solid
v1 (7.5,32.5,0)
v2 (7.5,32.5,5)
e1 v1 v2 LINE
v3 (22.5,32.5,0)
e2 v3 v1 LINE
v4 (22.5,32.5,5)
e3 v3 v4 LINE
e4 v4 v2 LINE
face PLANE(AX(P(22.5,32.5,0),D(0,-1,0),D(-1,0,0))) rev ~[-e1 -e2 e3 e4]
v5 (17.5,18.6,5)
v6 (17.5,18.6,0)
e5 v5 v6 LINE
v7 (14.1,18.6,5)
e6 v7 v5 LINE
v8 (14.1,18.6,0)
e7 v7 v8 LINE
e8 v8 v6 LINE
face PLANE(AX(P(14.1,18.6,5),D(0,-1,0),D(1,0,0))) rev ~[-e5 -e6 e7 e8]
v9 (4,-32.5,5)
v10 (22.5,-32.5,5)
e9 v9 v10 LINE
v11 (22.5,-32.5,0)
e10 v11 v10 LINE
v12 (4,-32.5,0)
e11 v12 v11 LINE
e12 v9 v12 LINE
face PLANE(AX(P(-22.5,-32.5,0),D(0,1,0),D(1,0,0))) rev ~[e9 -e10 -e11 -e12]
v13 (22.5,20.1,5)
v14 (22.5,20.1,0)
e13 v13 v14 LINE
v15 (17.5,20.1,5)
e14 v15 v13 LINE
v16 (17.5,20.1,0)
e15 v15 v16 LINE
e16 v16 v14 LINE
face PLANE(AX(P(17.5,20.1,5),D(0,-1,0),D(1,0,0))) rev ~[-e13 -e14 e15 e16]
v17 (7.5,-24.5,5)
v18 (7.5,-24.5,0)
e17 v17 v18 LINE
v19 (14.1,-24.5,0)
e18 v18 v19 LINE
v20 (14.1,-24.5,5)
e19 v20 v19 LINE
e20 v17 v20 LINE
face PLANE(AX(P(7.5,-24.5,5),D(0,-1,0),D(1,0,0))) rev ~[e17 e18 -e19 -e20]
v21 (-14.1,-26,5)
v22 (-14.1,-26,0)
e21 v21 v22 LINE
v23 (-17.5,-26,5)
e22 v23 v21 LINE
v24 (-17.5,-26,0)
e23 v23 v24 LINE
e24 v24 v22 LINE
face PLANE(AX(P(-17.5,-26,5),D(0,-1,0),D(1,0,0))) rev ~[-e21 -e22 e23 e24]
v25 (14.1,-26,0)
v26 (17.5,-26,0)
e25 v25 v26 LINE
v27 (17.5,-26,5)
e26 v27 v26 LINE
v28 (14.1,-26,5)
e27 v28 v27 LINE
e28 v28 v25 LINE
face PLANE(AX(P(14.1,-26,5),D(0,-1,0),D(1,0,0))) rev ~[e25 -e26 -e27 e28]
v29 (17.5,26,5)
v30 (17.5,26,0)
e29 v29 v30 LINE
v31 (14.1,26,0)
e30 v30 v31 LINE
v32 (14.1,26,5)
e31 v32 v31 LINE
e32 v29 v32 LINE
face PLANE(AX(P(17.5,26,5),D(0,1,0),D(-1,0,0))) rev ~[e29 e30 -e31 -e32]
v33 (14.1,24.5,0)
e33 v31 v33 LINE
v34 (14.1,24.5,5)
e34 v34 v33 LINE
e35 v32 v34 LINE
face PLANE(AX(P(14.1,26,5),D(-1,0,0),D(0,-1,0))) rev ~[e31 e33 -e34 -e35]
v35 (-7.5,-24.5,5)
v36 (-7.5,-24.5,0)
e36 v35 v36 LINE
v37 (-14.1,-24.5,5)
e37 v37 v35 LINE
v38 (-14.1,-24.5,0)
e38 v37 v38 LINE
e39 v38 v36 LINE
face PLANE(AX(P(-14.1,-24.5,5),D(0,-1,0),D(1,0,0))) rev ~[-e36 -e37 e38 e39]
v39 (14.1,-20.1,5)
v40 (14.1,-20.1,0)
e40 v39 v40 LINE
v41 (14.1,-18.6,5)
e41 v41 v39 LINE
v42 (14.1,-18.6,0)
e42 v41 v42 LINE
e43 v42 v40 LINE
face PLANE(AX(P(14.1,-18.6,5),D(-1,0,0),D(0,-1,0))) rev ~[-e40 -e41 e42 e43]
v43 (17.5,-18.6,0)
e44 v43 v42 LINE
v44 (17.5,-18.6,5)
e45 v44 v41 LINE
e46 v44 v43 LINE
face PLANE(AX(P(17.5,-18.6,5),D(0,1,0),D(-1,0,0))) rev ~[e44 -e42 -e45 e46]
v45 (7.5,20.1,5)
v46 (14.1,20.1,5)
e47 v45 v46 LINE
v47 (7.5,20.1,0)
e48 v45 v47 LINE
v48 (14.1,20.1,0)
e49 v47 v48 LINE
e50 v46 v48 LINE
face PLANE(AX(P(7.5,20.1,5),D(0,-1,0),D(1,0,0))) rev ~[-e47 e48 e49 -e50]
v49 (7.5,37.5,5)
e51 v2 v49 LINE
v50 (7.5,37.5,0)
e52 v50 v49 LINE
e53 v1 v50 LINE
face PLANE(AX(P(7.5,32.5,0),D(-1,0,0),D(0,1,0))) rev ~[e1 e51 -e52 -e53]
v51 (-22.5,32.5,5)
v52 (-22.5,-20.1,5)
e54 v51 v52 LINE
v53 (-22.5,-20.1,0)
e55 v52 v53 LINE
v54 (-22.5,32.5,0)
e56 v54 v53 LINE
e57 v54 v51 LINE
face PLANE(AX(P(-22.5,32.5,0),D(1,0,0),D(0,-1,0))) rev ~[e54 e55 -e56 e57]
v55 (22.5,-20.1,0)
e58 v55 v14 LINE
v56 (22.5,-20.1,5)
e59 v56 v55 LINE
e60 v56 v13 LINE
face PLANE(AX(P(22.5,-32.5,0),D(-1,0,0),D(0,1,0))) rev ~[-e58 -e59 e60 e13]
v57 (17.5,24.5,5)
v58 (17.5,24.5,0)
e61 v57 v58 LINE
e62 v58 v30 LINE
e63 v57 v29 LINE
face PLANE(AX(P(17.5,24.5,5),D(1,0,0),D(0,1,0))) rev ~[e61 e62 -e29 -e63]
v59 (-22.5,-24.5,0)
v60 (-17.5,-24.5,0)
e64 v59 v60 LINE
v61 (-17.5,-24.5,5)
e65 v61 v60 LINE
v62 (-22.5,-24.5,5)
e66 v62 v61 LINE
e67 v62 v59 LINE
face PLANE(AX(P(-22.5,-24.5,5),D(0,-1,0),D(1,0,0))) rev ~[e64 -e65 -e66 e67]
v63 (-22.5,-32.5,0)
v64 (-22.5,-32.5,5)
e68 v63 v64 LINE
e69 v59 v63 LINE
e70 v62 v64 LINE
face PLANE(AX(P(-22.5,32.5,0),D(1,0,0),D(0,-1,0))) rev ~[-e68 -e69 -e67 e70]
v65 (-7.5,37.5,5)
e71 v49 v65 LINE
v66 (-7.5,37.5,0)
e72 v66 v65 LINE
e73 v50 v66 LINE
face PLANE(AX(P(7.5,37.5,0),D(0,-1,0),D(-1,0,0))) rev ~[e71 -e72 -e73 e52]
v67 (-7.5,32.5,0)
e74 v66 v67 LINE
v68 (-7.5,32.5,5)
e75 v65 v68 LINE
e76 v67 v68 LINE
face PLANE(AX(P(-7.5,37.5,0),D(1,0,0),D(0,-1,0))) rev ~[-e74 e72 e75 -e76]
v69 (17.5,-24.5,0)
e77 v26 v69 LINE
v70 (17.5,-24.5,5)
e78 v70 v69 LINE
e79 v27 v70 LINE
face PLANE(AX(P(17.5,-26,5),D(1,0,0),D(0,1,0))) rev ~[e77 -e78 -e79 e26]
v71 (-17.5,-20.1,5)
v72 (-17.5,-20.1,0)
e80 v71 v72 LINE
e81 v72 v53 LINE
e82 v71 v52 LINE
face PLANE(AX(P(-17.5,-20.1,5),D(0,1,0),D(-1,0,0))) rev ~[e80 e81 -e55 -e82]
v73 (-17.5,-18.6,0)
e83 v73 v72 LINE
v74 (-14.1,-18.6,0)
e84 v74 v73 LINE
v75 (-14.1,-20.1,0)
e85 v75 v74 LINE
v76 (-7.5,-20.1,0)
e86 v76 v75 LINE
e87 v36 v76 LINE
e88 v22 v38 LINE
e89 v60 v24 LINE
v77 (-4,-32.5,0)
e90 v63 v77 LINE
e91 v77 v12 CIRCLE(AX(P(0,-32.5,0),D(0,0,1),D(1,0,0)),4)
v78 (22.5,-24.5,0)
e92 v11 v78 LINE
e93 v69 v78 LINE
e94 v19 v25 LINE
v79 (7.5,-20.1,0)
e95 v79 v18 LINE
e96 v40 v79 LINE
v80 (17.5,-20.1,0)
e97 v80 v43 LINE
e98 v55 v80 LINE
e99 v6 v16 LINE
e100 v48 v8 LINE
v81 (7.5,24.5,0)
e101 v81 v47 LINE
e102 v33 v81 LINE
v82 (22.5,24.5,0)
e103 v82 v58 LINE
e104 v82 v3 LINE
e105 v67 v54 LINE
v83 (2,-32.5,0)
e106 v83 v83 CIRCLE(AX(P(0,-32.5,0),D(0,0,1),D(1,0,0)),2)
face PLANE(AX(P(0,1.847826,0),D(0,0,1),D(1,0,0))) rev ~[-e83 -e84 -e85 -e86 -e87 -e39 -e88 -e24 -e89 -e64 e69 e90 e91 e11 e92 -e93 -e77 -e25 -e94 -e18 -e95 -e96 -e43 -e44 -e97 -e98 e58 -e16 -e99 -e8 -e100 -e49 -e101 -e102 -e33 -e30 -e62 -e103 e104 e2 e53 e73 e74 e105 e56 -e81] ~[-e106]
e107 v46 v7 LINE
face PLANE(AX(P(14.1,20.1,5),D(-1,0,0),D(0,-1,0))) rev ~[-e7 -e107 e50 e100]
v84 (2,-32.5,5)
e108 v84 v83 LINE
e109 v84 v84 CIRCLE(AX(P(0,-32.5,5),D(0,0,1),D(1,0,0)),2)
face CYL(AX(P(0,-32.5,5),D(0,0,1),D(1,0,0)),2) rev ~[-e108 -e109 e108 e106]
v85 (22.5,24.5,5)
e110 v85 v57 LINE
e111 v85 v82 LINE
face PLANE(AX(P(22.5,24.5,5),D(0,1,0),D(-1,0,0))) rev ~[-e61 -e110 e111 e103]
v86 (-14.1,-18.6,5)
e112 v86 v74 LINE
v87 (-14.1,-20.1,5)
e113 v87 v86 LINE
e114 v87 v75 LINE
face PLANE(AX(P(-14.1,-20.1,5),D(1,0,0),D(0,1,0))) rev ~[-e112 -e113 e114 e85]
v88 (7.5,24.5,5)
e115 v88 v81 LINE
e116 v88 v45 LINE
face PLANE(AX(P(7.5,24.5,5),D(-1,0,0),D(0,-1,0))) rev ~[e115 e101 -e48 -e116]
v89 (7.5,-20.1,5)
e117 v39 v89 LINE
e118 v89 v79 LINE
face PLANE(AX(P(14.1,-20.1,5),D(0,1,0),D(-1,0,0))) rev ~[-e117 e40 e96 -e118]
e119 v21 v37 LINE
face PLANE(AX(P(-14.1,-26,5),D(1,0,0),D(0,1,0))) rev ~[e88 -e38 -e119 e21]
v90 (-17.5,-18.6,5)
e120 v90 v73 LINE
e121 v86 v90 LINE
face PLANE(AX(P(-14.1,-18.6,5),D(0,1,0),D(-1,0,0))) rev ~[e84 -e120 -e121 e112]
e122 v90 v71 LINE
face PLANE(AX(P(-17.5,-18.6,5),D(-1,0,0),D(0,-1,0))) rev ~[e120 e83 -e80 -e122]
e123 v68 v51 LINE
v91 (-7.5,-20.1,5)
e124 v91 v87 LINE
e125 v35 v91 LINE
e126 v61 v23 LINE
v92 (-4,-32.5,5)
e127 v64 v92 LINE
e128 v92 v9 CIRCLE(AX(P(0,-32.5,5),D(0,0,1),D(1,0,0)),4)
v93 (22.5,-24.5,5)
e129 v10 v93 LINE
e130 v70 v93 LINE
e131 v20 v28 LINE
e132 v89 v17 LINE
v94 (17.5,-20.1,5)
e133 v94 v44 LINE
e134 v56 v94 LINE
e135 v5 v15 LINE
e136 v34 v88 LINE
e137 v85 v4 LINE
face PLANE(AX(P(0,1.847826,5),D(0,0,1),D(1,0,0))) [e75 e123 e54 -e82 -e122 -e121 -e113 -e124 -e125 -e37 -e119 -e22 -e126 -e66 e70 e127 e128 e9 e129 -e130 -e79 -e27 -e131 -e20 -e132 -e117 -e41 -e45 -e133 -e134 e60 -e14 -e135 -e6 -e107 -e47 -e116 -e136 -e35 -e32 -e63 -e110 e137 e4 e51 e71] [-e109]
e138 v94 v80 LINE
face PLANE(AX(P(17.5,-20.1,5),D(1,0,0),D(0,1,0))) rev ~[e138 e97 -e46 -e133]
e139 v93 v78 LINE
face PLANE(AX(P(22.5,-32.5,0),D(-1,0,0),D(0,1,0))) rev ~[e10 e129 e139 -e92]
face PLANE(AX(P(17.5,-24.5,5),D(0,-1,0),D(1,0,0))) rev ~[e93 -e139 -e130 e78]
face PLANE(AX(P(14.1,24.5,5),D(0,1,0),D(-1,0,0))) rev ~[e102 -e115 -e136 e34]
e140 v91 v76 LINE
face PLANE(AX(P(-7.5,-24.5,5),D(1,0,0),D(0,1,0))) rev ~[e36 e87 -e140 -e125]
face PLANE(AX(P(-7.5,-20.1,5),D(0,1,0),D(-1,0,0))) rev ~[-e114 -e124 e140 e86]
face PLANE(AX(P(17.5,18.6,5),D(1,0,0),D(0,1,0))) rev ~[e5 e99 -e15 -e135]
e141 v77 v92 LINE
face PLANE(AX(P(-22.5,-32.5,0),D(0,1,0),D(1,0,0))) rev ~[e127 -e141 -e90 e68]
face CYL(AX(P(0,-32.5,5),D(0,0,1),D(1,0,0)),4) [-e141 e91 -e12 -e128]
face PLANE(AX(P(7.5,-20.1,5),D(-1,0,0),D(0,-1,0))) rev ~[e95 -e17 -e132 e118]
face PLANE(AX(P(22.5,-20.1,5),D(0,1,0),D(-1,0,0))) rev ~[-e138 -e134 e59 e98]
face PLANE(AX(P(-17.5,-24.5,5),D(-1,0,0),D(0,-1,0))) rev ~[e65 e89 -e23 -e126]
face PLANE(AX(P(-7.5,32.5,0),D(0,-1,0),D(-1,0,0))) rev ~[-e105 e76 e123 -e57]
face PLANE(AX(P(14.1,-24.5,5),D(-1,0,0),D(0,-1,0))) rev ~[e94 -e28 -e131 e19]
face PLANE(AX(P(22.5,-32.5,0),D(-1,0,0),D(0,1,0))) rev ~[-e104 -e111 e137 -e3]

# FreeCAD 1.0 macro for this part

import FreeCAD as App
import Part
import Sketcher


def add_polygon(sketch, points):
    """Adds a closed chain of lines whose ends are joined by coincident constraints."""
    first, n = sketch.GeometryCount, len(points)
    for a, b in zip(points, points[1:] + points[:1]):
        sketch.addGeometry(Part.LineSegment(App.Vector(*a, 0), App.Vector(*b, 0)), False)
    for i in range(n):
        sketch.addConstraint(Sketcher.Constraint("Coincident", first + i, 2, first + (i + 1) % n, 1))

doc = App.newDocument("Part")
body = doc.addObject("PartDesign::Body", "Body")

# Sketch on XY plane
sketch1 = body.newObject("Sketcher::SketchObject", "Sketch")
sketch1.AttachmentSupport = (doc.getObject("XY_Plane"), [""])
sketch1.MapMode = "FlatFace"
add_polygon(sketch1, [(8, 32), (8, 38), (-8, 38), (-8, 32), (-22, 32), (-22, -32), (22, -32), (22, 32)])  # lines 0-7
sketch1.addConstraint(Sketcher.Constraint("Vertical", 0))
sketch1.addConstraint(Sketcher.Constraint("Horizontal", 1))
sketch1.addConstraint(Sketcher.Constraint("Vertical", 2))
sketch1.addConstraint(Sketcher.Constraint("Horizontal", 3))
sketch1.addConstraint(Sketcher.Constraint("Vertical", 4))
sketch1.addConstraint(Sketcher.Constraint("Horizontal", 5))
sketch1.addConstraint(Sketcher.Constraint("Vertical", 6))
sketch1.addConstraint(Sketcher.Constraint("Horizontal", 7))
sketch1.addConstraint(Sketcher.Constraint("Symmetric", 3, 2, 5, 2, -1, 1))
sketch1.addConstraint(Sketcher.Constraint("Symmetric", 2, 2, 7, 2, -2))
sketch1.addConstraint(Sketcher.Constraint("Equal", 1, 3))
sketch1.addConstraint(Sketcher.Constraint("DistanceX", 1, 2, 1, 1, 15.0))
sketch1.addConstraint(Sketcher.Constraint("DistanceY", 0, 1, 0, 2, 5.0))
sketch1.addConstraint(Sketcher.Constraint("DistanceY", 4, 2, 4, 1, 65.0))
pad1 = body.newObject("PartDesign::Pad", "Pad")
pad1.Profile = sketch1
pad1.Length = 5

# Sketch on XY plane
sketch2 = body.newObject("Sketcher::SketchObject", "Sketch001")
sketch2.AttachmentSupport = (doc.getObject("XY_Plane"), [""])
sketch2.MapMode = "FlatFace"
sketch2.AttachmentOffset = App.Placement(App.Vector(0, 0, 5), App.Rotation())
add_polygon(sketch2, [(22.5, 24.5), (17.5, 24.5), (17.5, 26), (14.1, 26), (14.1, 24.5), (7.5, 24.5), (7.5, 20.1), (14.1, 20.1), (14.1, 18.6), (17.5, 18.6), (17.5, 20.1), (22.5, 20.1)])  # lines 0-11
add_polygon(sketch2, [(22.5, -24.5), (22.5, -20.1), (17.5, -20.1), (17.5, -18.6), (14.1, -18.6), (14.1, -20.1), (7.5, -20.1), (7.5, -24.5), (14.1, -24.5), (14.1, -26), (17.5, -26), (17.5, -24.5)])  # lines 12-23
add_polygon(sketch2, [(-22.5, -24.5), (-17.5, -24.5), (-17.5, -26), (-14.1, -26), (-14.1, -24.5), (-7.5, -24.5), (-7.5, -20.1), (-14.1, -20.1), (-14.1, -18.6), (-17.5, -18.6), (-17.5, -20.1), (-22.5, -20.1)])  # lines 24-35
sketch2.addConstraint(Sketcher.Constraint("Horizontal", 0))
sketch2.addConstraint(Sketcher.Constraint("Vertical", 1))
sketch2.addConstraint(Sketcher.Constraint("Horizontal", 2))
sketch2.addConstraint(Sketcher.Constraint("Vertical", 3))
sketch2.addConstraint(Sketcher.Constraint("Horizontal", 4))
sketch2.addConstraint(Sketcher.Constraint("Vertical", 5))
sketch2.addConstraint(Sketcher.Constraint("Horizontal", 6))
sketch2.addConstraint(Sketcher.Constraint("Vertical", 7))
sketch2.addConstraint(Sketcher.Constraint("Horizontal", 8))
sketch2.addConstraint(Sketcher.Constraint("Vertical", 9))
sketch2.addConstraint(Sketcher.Constraint("Horizontal", 10))
sketch2.addConstraint(Sketcher.Constraint("Vertical", 11))
sketch2.addConstraint(Sketcher.Constraint("Vertical", 12))
sketch2.addConstraint(Sketcher.Constraint("Horizontal", 13))
sketch2.addConstraint(Sketcher.Constraint("Vertical", 14))
sketch2.addConstraint(Sketcher.Constraint("Horizontal", 15))
sketch2.addConstraint(Sketcher.Constraint("Vertical", 16))
sketch2.addConstraint(Sketcher.Constraint("Horizontal", 17))
sketch2.addConstraint(Sketcher.Constraint("Vertical", 18))
sketch2.addConstraint(Sketcher.Constraint("Horizontal", 19))
sketch2.addConstraint(Sketcher.Constraint("Vertical", 20))
sketch2.addConstraint(Sketcher.Constraint("Horizontal", 21))
sketch2.addConstraint(Sketcher.Constraint("Vertical", 22))
sketch2.addConstraint(Sketcher.Constraint("Horizontal", 23))
sketch2.addConstraint(Sketcher.Constraint("Horizontal", 24))
sketch2.addConstraint(Sketcher.Constraint("Vertical", 25))
sketch2.addConstraint(Sketcher.Constraint("Horizontal", 26))
sketch2.addConstraint(Sketcher.Constraint("Vertical", 27))
sketch2.addConstraint(Sketcher.Constraint("Horizontal", 28))
sketch2.addConstraint(Sketcher.Constraint("Vertical", 29))
sketch2.addConstraint(Sketcher.Constraint("Horizontal", 30))
sketch2.addConstraint(Sketcher.Constraint("Vertical", 31))
sketch2.addConstraint(Sketcher.Constraint("Horizontal", 32))
sketch2.addConstraint(Sketcher.Constraint("Vertical", 33))
sketch2.addConstraint(Sketcher.Constraint("Horizontal", 34))
sketch2.addConstraint(Sketcher.Constraint("Vertical", 35))
sketch2.addConstraint(Sketcher.Constraint("Symmetric", 0, 2, 24, 2, -1, 1))
sketch2.addConstraint(Sketcher.Constraint("Symmetric", 2, 2, 26, 2, -1, 1))
sketch2.addConstraint(Sketcher.Constraint("Symmetric", 4, 2, 28, 2, -1, 1))
sketch2.addConstraint(Sketcher.Constraint("Symmetric", 6, 2, 30, 2, -1, 1))
sketch2.addConstraint(Sketcher.Constraint("Symmetric", 8, 2, 32, 2, -1, 1))
sketch2.addConstraint(Sketcher.Constraint("Symmetric", 10, 2, 34, 2, -1, 1))
sketch2.addConstraint(Sketcher.Constraint("Symmetric", 22, 2, 24, 2, -2))
sketch2.addConstraint(Sketcher.Constraint("Symmetric", 20, 2, 26, 2, -2))
sketch2.addConstraint(Sketcher.Constraint("Symmetric", 18, 2, 28, 2, -2))
sketch2.addConstraint(Sketcher.Constraint("Symmetric", 16, 2, 30, 2, -2))
sketch2.addConstraint(Sketcher.Constraint("Symmetric", 14, 2, 32, 2, -2))
sketch2.addConstraint(Sketcher.Constraint("Symmetric", 12, 2, 34, 2, -2))
sketch2.addConstraint(Sketcher.Constraint("Horizontal", 0, 2, 3, 2))
sketch2.addConstraint(Sketcher.Constraint("Horizontal", 6, 2, 9, 2))
sketch2.addConstraint(Sketcher.Constraint("Vertical", 3, 2, 6, 2))
sketch2.addConstraint(Sketcher.Constraint("Vertical", 1, 2, 8, 2))
sketch2.addConstraint(Sketcher.Constraint("Equal", 3, 7))
sketch2.addConstraint(Sketcher.Constraint("DistanceX", 0, 2, 0, 1, 5.0))
sketch2.addConstraint(Sketcher.Constraint("DistanceX", 2, 2, 2, 1, 3.4))
sketch2.addConstraint(Sketcher.Constraint("DistanceX", 4, 2, 4, 1, 6.6))
sketch2.addConstraint(Sketcher.Constraint("DistanceY", 1, 1, 1, 2, 1.5))
sketch2.addConstraint(Sketcher.Constraint("DistanceY", 5, 2, 5, 1, 4.4))
sketch2.addConstraint(Sketcher.Constraint("DistanceY", -1, 1, 1, 2, 26.0))
sketch2.addConstraint(Sketcher.Constraint("DistanceX", 24, 2, 18, 2, 25.0))
pocket1 = body.newObject("PartDesign::Pocket", "Pocket")
pocket1.Profile = sketch2
pocket1.Length = 5

# Sketch on XY plane
sketch3 = body.newObject("Sketcher::SketchObject", "Sketch002")
sketch3.AttachmentSupport = (doc.getObject("XY_Plane"), [""])
sketch3.MapMode = "FlatFace"
sketch3.AttachmentOffset = App.Placement(App.Vector(0, 0, 5), App.Rotation())
sketch3.addGeometry(Part.Circle(App.Vector(0, -32.5, 0), App.Vector(0, 0, 1), 4), False)
sketch3.addGeometry(Part.Circle(App.Vector(0, -32.5, 0), App.Vector(0, 0, 1), 2), False)
sketch3.addConstraint(Sketcher.Constraint("Coincident", 1, 3, 0, 3))
sketch3.addConstraint(Sketcher.Constraint("PointOnObject", 0, 3, -2))
sketch3.addConstraint(Sketcher.Constraint("Diameter", 0, 8.0))
sketch3.addConstraint(Sketcher.Constraint("Diameter", 1, 4.0))
sketch3.addConstraint(Sketcher.Constraint("DistanceY", 0, 3, -1, 1, 32.5))
pad2 = body.newObject("PartDesign::Pad", "Pad001")
pad2.Profile = sketch3
pad2.Length = 5
pad2.Reversed = True

# Sketch on XY plane
sketch4 = body.newObject("Sketcher::SketchObject", "Sketch003")
sketch4.AttachmentSupport = (doc.getObject("XY_Plane"), [""])
sketch4.MapMode = "FlatFace"
sketch4.AttachmentOffset = App.Placement(App.Vector(0, 0, 5), App.Rotation())
sketch4.addGeometry(Part.Circle(App.Vector(0, -32.5, 0), App.Vector(0, 0, 1), 2), False)
sketch4.addConstraint(Sketcher.Constraint("PointOnObject", 0, 3, -2))
sketch4.addConstraint(Sketcher.Constraint("Diameter", 0, 4.0))
sketch4.addConstraint(Sketcher.Constraint("DistanceY", 0, 3, -1, 1, 32.5))
pocket2 = body.newObject("PartDesign::Pocket", "Pocket001")
pocket2.Profile = sketch4
pocket2.Length = 5

doc.recompute()
